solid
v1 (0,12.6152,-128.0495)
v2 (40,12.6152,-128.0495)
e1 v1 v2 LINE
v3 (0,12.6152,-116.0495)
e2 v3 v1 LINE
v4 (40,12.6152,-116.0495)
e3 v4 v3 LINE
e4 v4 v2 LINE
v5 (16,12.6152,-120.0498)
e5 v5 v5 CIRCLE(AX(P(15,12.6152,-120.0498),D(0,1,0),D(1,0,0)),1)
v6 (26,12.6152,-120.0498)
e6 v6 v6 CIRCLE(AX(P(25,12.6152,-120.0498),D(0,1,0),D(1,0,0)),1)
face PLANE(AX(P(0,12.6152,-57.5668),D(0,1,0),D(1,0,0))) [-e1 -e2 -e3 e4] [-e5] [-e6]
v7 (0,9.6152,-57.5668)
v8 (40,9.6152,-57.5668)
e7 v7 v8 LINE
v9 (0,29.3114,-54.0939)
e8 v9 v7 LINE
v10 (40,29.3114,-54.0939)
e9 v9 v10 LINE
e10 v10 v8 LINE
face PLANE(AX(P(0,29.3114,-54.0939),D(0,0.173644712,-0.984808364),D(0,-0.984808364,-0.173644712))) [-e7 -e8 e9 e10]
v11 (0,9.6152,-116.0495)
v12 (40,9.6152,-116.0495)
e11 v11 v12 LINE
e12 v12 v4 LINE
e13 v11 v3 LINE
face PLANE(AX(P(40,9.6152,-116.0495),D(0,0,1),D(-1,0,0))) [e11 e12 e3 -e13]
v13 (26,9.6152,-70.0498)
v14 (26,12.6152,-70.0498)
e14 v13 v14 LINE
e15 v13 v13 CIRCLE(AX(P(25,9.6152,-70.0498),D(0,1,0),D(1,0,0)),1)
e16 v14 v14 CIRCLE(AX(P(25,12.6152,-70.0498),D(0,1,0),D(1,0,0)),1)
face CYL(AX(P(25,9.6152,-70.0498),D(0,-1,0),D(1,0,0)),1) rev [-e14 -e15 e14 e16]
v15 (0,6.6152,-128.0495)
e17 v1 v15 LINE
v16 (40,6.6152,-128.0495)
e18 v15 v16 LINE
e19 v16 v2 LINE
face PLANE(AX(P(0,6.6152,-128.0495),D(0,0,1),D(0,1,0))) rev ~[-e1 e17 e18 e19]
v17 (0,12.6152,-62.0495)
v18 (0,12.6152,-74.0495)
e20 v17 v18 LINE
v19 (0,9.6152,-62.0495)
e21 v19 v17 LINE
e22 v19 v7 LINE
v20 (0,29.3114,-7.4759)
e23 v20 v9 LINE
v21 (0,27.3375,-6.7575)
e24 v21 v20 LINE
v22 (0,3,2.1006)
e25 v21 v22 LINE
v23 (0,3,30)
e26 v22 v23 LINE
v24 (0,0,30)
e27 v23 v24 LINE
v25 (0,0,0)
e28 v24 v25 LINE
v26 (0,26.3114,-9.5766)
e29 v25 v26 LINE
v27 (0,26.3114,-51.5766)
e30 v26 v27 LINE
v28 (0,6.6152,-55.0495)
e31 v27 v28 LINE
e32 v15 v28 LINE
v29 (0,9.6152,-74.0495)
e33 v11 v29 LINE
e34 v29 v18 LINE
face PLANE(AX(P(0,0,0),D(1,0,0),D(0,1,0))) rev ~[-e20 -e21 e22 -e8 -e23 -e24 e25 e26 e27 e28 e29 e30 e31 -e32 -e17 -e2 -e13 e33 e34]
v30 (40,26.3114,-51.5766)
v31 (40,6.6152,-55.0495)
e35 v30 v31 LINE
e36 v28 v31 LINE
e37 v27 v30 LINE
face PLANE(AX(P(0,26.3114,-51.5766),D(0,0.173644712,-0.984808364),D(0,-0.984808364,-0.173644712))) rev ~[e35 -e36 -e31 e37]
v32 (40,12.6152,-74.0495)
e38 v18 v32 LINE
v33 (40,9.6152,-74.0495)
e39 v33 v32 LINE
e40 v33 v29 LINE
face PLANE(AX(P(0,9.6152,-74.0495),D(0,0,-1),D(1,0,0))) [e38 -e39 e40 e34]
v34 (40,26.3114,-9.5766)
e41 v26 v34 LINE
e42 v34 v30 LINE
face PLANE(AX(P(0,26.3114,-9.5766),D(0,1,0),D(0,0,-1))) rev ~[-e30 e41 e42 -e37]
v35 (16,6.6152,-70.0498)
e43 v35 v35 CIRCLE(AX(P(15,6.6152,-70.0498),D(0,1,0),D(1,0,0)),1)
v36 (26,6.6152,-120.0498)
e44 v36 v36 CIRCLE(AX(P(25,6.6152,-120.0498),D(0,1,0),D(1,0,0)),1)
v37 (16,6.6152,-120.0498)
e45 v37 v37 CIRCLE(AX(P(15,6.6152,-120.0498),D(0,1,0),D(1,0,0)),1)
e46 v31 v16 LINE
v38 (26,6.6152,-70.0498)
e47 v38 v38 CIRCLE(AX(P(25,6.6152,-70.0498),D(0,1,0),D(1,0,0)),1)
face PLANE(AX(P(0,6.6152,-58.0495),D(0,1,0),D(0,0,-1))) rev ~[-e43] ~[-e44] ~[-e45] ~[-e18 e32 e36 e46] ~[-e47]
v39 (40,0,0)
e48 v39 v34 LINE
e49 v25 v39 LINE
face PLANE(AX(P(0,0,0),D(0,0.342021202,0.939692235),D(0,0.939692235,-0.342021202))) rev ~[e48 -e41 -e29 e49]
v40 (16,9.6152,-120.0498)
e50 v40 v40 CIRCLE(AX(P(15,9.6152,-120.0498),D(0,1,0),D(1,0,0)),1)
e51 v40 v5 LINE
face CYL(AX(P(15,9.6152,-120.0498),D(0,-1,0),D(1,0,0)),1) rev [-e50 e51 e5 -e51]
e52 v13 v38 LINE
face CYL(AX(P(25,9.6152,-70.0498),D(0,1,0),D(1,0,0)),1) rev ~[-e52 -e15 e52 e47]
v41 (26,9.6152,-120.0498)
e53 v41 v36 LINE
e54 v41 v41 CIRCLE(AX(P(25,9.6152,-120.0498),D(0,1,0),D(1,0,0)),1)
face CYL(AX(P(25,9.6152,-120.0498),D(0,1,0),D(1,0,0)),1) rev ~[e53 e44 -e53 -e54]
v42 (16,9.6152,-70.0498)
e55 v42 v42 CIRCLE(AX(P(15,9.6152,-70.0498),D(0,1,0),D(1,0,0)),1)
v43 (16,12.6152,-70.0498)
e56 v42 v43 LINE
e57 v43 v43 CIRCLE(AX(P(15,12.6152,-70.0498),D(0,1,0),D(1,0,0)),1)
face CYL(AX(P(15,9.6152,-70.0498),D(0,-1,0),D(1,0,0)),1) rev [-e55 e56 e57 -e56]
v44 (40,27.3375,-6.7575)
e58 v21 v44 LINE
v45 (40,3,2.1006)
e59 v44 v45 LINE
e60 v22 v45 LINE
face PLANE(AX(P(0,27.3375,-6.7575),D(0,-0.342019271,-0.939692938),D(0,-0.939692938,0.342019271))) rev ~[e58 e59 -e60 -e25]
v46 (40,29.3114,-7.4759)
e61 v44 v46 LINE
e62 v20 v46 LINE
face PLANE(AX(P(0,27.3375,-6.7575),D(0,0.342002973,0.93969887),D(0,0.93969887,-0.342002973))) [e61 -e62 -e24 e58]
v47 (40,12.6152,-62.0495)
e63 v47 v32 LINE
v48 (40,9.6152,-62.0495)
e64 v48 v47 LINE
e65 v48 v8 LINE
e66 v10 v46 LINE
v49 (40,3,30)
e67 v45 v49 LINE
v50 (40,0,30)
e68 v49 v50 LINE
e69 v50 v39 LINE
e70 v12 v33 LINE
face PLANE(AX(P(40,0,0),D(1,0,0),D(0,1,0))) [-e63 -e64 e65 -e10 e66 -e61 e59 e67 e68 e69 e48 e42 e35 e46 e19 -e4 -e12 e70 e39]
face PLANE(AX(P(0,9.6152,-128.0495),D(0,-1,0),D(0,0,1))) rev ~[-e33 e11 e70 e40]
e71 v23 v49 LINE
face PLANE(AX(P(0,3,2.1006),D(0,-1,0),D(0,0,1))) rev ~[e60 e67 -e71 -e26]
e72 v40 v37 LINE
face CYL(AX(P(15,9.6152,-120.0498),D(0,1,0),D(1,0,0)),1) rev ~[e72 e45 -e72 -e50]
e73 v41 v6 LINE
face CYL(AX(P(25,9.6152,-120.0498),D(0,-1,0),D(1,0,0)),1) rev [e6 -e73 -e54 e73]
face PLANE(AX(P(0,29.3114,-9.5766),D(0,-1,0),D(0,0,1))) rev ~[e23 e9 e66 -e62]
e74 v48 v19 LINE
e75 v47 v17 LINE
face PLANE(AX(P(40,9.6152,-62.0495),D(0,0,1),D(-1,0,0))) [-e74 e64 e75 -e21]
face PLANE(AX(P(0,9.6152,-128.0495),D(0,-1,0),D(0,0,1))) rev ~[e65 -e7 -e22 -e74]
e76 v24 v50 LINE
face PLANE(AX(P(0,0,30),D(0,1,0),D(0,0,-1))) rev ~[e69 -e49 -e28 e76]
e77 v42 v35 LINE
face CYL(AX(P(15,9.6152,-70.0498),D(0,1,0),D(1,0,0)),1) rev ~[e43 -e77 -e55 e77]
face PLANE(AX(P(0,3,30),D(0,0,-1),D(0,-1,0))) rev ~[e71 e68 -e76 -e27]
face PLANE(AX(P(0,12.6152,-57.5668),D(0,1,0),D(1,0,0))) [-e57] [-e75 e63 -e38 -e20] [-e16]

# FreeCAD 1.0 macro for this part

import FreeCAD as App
import Part
import Sketcher
Q = App.Units.Quantity


def add_polygon(sketch, points):
    """Adds a closed chain of lines whose ends are joined by coincident constraints."""
    first, n = sketch.GeometryCount, len(points)
    for a, b in zip(points, points[1:] + points[:1]):
        sketch.addGeometry(Part.LineSegment(App.Vector(*a, 0), App.Vector(*b, 0)), False)
    for i in range(n):
        sketch.addConstraint(Sketcher.Constraint("Coincident", first + i, 2, first + (i + 1) % n, 1))

doc = App.newDocument("Part")
params = doc.addObject("Spreadsheet::Sheet", "Params")
for row, (alias, value) in enumerate([
    ("sketch1_width", "3 mm"),
    ("sketch1_height", "73 mm"),
    ("sketch1_length", "28 mm"),
    ("sketch1_length2", "20 mm"),
    ("sketch1_height2", "30 mm"),
    ("pad1_length", "40 mm"),
    ("sketch2_diameter", "2 mm"),
    ("sketch2_height", "12 mm"),
    ("sketch2_width", "40 mm"),
    ("pad2_length", "3 mm"),
    ("sketch3_diameter", "2 mm"),
    ("pocket1_length", "3 mm"),
], start=1):
    params.set(f"A{row}", alias)
    params.set(f"B{row}", "=" + value)
    params.setAlias(f"B{row}", alias)

body = doc.addObject("PartDesign::Body", "Body")

sketch1 = body.newObject("Sketcher::SketchObject", "Sketch")
sketch1.AttachmentSupport = (doc.getObject("YZ_Plane"), [""])
sketch1.MapMode = "FlatFace"
add_polygon(sketch1, [(3, 2.1), (3, 30), (0, 30), (0, 0), (26.3, -9.6), (26.3, -51.6), (6.6, -55), (6.6, -128), (9.6, -128), (9.6, -57.6), (29.3, -54.1), (29.3, -7.5), (27.3, -6.8)])
sketch1.addConstraint(Sketcher.Constraint("Vertical", 0))
sketch1.addConstraint(Sketcher.Constraint("Horizontal", 1))
sketch1.addConstraint(Sketcher.Constraint("Vertical", 2))
sketch1.addConstraint(Sketcher.Constraint("Vertical", 4))
sketch1.addConstraint(Sketcher.Constraint("Vertical", 6))
sketch1.addConstraint(Sketcher.Constraint("Horizontal", 7))
sketch1.addConstraint(Sketcher.Constraint("Vertical", 8))
sketch1.addConstraint(Sketcher.Constraint("Vertical", 10))
sketch1.addConstraint(Sketcher.Constraint("Coincident", 2, 2, -1, 1))
sketch1.addConstraint(Sketcher.Constraint("Parallel", 5, 9))
sketch1.addConstraint(Sketcher.Constraint("Parallel", 3, 11))
sketch1.addConstraint(Sketcher.Constraint("Parallel", 11, 12))
sketch1.addConstraint(Sketcher.Constraint("Equal", 1, 7))
sketch1.addConstraint(Sketcher.Constraint("Equal", 5, 9))
sketch1.addConstraint(Sketcher.Constraint("DistanceX", 1, 2, 1, 1, 3.0))
sketch1.addConstraint(Sketcher.Constraint("DistanceY", 6, 2, 6, 1, 73.0))
sketch1.addConstraint(Sketcher.Constraint("Angle", 3, Q("-20 deg")))
sketch1.addConstraint(Sketcher.Constraint("Distance", 3, 28.0))
sketch1.addConstraint(Sketcher.Constraint("Distance", 5, 20.0))
sketch1.addConstraint(Sketcher.Constraint("DistanceY", 2, 2, 2, 1, 30.0))
sketch1.addConstraint(Sketcher.Constraint("DistanceY", 4, 2, 4, 1, 42.0))
sketch1.addConstraint(Sketcher.Constraint("Angle", 5, Q("-170.0002 deg")))
sketch1.addConstraint(Sketcher.Constraint("DistanceY", 10, 1, 10, 2, 46.618))
sketch1.addConstraint(Sketcher.Constraint("DistanceY", 0, 1, 0, 2, 27.8994))
sketch1.addConstraint(Sketcher.Constraint("DistanceX", 11, 2, 10, 2, 1.974))
sketch1.setExpression("Constraints[27]", "Params.sketch1_width")
sketch1.setExpression("Constraints[28]", "Params.sketch1_height")
sketch1.setExpression("Constraints[30]", "Params.sketch1_length")
sketch1.setExpression("Constraints[31]", "Params.sketch1_length2")
sketch1.setExpression("Constraints[32]", "Params.sketch1_height2")
pad1 = body.newObject("PartDesign::Pad", "Pad")
pad1.Profile = sketch1
pad1.setExpression("Length", "Params.pad1_length")

sketch2 = body.newObject("Sketcher::SketchObject", "Sketch001")
sketch2.AttachmentSupport = (doc.getObject("XZ_Plane"), [""])
sketch2.MapMode = "FlatFace"
sketch2.AttachmentOffset = App.Placement(App.Vector(0, 0, -9.6152), App.Rotation())
add_polygon(sketch2, [(40, -128), (0, -128), (0, -116), (40, -116)])
sketch2.addGeometry(Part.Circle(App.Vector(15, -120, 0), App.Vector(0, 0, 1), 1), False)
sketch2.addGeometry(Part.Circle(App.Vector(25, -120, 0), App.Vector(0, 0, 1), 1), False)
add_polygon(sketch2, [(40, -62), (40, -74), (0, -74), (0, -62)])
sketch2.addGeometry(Part.Circle(App.Vector(15, -70, 0), App.Vector(0, 0, 1), 1), False)
sketch2.addGeometry(Part.Circle(App.Vector(25, -70, 0), App.Vector(0, 0, 1), 1), False)
sketch2.addConstraint(Sketcher.Constraint("Horizontal", 0))
sketch2.addConstraint(Sketcher.Constraint("Vertical", 1))
sketch2.addConstraint(Sketcher.Constraint("Horizontal", 2))
sketch2.addConstraint(Sketcher.Constraint("Vertical", 3))
sketch2.addConstraint(Sketcher.Constraint("Vertical", 6))
sketch2.addConstraint(Sketcher.Constraint("Horizontal", 7))
sketch2.addConstraint(Sketcher.Constraint("Vertical", 8))
sketch2.addConstraint(Sketcher.Constraint("Horizontal", 9))
sketch2.addConstraint(Sketcher.Constraint("Equal", 4, 5))
sketch2.addConstraint(Sketcher.Constraint("Equal", 5, 10))
sketch2.addConstraint(Sketcher.Constraint("Equal", 10, 11))
sketch2.addConstraint(Sketcher.Constraint("PointOnObject", 0, 2, -2))
sketch2.addConstraint(Sketcher.Constraint("PointOnObject", 7, 2, -2))
sketch2.addConstraint(Sketcher.Constraint("Horizontal", 4, 3, 5, 3))
sketch2.addConstraint(Sketcher.Constraint("Horizontal", 10, 3, 11, 3))
sketch2.addConstraint(Sketcher.Constraint("Vertical", 4, 3, 10, 3))
sketch2.addConstraint(Sketcher.Constraint("Vertical", 5, 3, 11, 3))
sketch2.addConstraint(Sketcher.Constraint("Vertical", 3, 2, 6, 2))
sketch2.addConstraint(Sketcher.Constraint("Equal", 3, 6))
sketch2.addConstraint(Sketcher.Constraint("Diameter", 4, 2.0))
sketch2.addConstraint(Sketcher.Constraint("DistanceY", 1, 1, 1, 2, 12.0))
sketch2.addConstraint(Sketcher.Constraint("DistanceY", 2, 2, 6, 2, 42.0))
sketch2.addConstraint(Sketcher.Constraint("DistanceX", 0, 2, 0, 1, 40.0))
sketch2.addConstraint(Sketcher.Constraint("DistanceX", -1, 1, 4, 3, 15.0))
sketch2.addConstraint(Sketcher.Constraint("DistanceX", -1, 1, 5, 3, 25.0))
sketch2.addConstraint(Sketcher.Constraint("DistanceY", 4, 3, 10, 3, 50.0))
sketch2.addConstraint(Sketcher.Constraint("DistanceY", 4, 3, -1, 1, 120.0498))
sketch2.addConstraint(Sketcher.Constraint("DistanceY", 0, 2, -1, 1, 128.0495))
sketch2.setExpression("Constraints[27]", "Params.sketch2_diameter")
sketch2.setExpression("Constraints[28]", "Params.sketch2_height")
sketch2.setExpression("Constraints[30]", "Params.sketch2_width")
pad2 = body.newObject("PartDesign::Pad", "Pad001")
pad2.Profile = sketch2
pad2.setExpression("Length", "Params.pad2_length")
pad2.Reversed = True

sketch3 = body.newObject("Sketcher::SketchObject", "Sketch002")
sketch3.AttachmentSupport = (doc.getObject("XZ_Plane"), [""])
sketch3.MapMode = "FlatFace"
sketch3.AttachmentOffset = App.Placement(App.Vector(0, 0, -9.6152), App.Rotation())
sketch3.addGeometry(Part.Circle(App.Vector(25, -120, 0), App.Vector(0, 0, 1), 1), False)
sketch3.addGeometry(Part.Circle(App.Vector(15, -120, 0), App.Vector(0, 0, 1), 1), False)
sketch3.addGeometry(Part.Circle(App.Vector(25, -70, 0), App.Vector(0, 0, 1), 1), False)
sketch3.addGeometry(Part.Circle(App.Vector(15, -70, 0), App.Vector(0, 0, 1), 1), False)
sketch3.addConstraint(Sketcher.Constraint("Equal", 0, 1))
sketch3.addConstraint(Sketcher.Constraint("Equal", 1, 2))
sketch3.addConstraint(Sketcher.Constraint("Equal", 2, 3))
sketch3.addConstraint(Sketcher.Constraint("Horizontal", 0, 3, 1, 3))
sketch3.addConstraint(Sketcher.Constraint("Horizontal", 2, 3, 3, 3))
sketch3.addConstraint(Sketcher.Constraint("Vertical", 0, 3, 2, 3))
sketch3.addConstraint(Sketcher.Constraint("Vertical", 1, 3, 3, 3))
sketch3.addConstraint(Sketcher.Constraint("Diameter", 0, 2.0))
sketch3.addConstraint(Sketcher.Constraint("DistanceX", -1, 1, 0, 3, 25.0))
sketch3.addConstraint(Sketcher.Constraint("DistanceX", -1, 1, 1, 3, 15.0))
sketch3.addConstraint(Sketcher.Constraint("DistanceY", 0, 3, 2, 3, 50.0))
sketch3.addConstraint(Sketcher.Constraint("DistanceY", 0, 3, -1, 1, 120.0498))
sketch3.setExpression("Constraints[7]", "Params.sketch3_diameter")
pocket1 = body.newObject("PartDesign::Pocket", "Pocket")
pocket1.Profile = sketch3
pocket1.setExpression("Length", "Params.pocket1_length")
pocket1.Reversed = True

doc.recompute()
